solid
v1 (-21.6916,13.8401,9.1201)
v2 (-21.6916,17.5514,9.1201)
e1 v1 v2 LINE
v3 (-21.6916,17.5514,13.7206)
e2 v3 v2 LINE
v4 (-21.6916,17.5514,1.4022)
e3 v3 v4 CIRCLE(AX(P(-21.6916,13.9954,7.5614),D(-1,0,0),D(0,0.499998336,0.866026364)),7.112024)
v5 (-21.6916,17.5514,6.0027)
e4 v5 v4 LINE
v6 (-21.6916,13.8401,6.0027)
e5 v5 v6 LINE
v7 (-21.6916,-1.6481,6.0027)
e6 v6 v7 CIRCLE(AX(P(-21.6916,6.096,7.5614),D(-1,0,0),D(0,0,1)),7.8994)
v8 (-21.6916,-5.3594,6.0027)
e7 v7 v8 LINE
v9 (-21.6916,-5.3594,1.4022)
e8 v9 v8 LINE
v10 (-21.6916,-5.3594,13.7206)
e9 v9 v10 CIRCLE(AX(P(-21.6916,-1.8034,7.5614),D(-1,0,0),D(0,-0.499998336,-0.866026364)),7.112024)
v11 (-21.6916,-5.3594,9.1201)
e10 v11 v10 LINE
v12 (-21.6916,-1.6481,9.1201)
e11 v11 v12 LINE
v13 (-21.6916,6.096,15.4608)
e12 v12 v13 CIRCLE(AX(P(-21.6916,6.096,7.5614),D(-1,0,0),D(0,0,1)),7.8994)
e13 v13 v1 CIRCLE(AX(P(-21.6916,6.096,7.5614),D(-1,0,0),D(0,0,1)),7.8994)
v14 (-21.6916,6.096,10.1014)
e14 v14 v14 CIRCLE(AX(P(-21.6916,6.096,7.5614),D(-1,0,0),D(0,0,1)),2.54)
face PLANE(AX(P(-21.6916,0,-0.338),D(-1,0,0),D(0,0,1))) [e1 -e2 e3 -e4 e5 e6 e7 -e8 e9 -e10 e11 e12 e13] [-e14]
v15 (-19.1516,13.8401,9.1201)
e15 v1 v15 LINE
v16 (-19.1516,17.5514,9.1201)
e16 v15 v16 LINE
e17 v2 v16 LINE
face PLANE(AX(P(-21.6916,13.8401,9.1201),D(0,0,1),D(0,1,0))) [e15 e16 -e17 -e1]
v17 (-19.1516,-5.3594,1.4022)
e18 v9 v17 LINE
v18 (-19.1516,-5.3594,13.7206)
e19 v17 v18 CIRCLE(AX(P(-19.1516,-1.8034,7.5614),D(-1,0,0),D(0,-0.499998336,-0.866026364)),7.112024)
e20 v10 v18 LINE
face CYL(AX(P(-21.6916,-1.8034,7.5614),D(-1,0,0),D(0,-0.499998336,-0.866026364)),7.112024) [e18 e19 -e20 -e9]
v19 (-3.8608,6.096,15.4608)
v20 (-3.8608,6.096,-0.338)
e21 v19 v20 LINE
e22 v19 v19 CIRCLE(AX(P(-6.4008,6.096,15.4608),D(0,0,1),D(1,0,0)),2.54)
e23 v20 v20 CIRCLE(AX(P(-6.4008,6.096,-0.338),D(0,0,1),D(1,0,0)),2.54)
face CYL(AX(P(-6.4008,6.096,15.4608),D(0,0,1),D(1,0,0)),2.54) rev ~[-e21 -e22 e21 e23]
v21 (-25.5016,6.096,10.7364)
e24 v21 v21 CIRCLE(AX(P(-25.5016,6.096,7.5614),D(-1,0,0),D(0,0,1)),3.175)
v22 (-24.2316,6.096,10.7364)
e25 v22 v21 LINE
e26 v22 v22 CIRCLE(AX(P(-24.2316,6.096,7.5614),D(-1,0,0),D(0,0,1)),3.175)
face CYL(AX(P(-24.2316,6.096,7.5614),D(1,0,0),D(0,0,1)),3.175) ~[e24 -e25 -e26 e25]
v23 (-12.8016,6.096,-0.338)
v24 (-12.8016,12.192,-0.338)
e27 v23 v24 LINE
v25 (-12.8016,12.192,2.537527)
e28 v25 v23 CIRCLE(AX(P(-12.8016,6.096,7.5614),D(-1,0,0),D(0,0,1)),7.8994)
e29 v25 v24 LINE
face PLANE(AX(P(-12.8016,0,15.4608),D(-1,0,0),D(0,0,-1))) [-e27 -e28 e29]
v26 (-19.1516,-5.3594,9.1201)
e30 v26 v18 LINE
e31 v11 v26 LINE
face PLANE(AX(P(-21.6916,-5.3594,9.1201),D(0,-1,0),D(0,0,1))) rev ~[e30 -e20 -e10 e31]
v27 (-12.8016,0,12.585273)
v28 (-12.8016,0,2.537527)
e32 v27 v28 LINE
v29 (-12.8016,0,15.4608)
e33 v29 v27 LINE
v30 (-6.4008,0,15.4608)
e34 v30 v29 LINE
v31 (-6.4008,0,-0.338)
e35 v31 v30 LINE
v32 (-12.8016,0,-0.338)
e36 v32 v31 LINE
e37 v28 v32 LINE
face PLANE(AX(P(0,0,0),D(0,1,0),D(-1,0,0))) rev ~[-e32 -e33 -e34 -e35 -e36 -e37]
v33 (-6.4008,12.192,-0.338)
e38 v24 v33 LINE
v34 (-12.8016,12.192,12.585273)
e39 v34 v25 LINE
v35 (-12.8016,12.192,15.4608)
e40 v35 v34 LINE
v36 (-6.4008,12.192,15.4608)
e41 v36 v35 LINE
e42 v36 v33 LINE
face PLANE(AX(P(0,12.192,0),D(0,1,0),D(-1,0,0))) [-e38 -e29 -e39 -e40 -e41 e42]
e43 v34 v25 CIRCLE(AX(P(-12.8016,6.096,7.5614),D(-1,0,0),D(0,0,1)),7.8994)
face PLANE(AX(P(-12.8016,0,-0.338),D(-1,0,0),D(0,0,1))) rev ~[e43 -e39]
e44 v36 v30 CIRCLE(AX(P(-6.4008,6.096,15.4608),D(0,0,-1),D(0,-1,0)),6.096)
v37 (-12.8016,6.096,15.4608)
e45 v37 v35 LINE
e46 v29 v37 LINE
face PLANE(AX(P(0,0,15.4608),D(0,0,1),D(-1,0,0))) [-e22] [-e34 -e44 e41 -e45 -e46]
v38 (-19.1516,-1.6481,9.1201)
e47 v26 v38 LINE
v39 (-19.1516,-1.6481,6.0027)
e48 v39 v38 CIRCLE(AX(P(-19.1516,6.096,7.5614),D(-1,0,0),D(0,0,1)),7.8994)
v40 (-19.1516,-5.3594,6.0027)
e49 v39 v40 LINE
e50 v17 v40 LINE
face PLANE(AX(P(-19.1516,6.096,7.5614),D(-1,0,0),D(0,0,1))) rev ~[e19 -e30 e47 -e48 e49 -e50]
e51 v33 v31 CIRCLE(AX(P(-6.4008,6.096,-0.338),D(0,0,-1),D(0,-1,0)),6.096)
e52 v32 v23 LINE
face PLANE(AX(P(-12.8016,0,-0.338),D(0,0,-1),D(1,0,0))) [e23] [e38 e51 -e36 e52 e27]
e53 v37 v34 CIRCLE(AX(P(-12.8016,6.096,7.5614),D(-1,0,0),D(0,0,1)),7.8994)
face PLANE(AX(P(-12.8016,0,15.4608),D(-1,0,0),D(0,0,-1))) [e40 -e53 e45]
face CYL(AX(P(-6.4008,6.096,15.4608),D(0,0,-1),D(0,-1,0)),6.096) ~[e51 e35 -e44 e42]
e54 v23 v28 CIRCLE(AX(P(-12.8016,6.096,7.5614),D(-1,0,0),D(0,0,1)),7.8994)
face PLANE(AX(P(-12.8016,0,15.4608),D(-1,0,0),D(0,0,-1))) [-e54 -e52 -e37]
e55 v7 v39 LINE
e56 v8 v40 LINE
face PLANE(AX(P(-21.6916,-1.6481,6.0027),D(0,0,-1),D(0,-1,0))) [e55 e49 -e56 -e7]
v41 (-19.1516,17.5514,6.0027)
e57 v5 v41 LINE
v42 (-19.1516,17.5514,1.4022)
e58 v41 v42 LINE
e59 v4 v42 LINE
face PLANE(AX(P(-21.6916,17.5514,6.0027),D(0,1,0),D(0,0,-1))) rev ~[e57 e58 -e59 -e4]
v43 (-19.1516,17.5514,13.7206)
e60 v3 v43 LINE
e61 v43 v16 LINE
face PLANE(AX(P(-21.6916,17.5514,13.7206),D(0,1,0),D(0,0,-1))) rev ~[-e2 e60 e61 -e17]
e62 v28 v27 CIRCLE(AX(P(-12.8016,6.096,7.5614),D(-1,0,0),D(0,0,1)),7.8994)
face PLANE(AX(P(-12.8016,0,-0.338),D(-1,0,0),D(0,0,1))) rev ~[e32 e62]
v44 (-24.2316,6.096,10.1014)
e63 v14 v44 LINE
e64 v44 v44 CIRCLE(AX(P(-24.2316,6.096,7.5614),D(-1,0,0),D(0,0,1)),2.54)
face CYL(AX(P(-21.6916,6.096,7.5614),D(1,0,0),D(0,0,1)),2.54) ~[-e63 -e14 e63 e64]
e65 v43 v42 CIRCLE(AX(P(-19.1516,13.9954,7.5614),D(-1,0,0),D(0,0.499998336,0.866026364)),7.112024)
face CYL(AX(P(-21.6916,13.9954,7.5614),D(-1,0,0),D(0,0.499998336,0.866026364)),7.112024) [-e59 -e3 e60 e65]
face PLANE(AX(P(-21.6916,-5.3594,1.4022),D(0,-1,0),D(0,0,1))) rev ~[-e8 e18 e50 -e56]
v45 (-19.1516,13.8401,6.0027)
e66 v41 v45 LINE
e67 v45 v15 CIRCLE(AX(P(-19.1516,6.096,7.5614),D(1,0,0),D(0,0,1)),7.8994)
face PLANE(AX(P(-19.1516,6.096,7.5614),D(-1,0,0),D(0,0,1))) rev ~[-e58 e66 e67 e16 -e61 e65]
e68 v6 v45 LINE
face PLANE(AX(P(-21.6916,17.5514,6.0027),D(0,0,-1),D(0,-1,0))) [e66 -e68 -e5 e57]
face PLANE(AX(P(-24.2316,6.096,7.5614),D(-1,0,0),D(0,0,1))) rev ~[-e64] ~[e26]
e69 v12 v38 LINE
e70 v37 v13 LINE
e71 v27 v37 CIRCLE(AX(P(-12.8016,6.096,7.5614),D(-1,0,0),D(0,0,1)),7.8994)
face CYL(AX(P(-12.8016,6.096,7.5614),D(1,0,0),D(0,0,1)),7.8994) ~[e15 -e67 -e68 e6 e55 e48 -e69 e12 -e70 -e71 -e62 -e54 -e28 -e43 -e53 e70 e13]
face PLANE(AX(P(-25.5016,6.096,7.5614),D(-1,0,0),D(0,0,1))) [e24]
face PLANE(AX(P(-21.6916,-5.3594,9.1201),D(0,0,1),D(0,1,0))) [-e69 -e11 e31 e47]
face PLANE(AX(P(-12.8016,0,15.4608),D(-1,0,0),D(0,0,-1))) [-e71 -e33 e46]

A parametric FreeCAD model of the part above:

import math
import FreeCAD as App
import Part
import Sketcher
from FreeCAD import Vector
Q = App.Units.Quantity

doc = App.newDocument("Part")
body = doc.addObject("PartDesign::Body", "Body")

# Sketch on XZ plane
sketch1 = doc.addObject("Sketcher::SketchObject", "Sketch")
body.addObject(sketch1)
sketch1.AttachmentSupport = (doc.XZ_Plane, [""])
sketch1.MapMode = "FlatFace"
sketch1.addGeometry([
    Part.LineSegment(Vector(-13, 15, 0), Vector(0, 15, 0)),
    Part.LineSegment(Vector(0, 15, 0), Vector(0, 0, 0)),
    Part.LineSegment(Vector(0, 0, 0), Vector(-13, 0, 0)),
    Part.LineSegment(Vector(-13, 0, 0), Vector(-13, 15, 0)),
], False)
sketch1.addConstraint([
    Sketcher.Constraint("Coincident", 0, 2, 1, 1),
    Sketcher.Constraint("Coincident", 1, 2, 2, 1),
    Sketcher.Constraint("Coincident", 2, 2, 3, 1),
    Sketcher.Constraint("Coincident", 3, 2, 0, 1),
    Sketcher.Constraint("Horizontal", 0),
    Sketcher.Constraint("Vertical", 1),
    Sketcher.Constraint("Horizontal", 2),
    Sketcher.Constraint("Vertical", 3),
    Sketcher.Constraint("PointOnObject", 0, 2, -2),
    Sketcher.Constraint("DistanceX", 0, 1, 0, 2, Q("0.504 in")),
    Sketcher.Constraint("DistanceY", 1, 2, 1, 1, Q("0.622 in")),
    Sketcher.Constraint("DistanceY", -1, 1, 0, 2, Q("0.6087 in")),
])
pad1 = doc.addObject("PartDesign::Pad", "Pad")
body.addObject(pad1)
pad1.Profile = sketch1
pad1.Length = Q("0.48 in")
pad1.Reversed = True

# Sketch on XY plane
sketch2 = doc.addObject("Sketcher::SketchObject", "Sketch001")
body.addObject(sketch2)
sketch2.AttachmentSupport = (doc.XY_Plane, [""])
sketch2.MapMode = "FlatFace"
sketch2.AttachmentOffset = App.Placement(Vector(0, 0, 0.6086929 * 25.4), App.Rotation())
sketch2.addGeometry([
    Part.ArcOfCircle(Part.Circle(Vector(-6, 6, 0), Vector(0, 0, 1), 6), math.radians(-90), math.radians(90)),  # 0
    Part.LineSegment(Vector(-6, 0, 0), Vector(5, -4, 0)),  # 1
    Part.LineSegment(Vector(5, -4, 0), Vector(7, 8, 0)),  # 2
    Part.LineSegment(Vector(7, 8, 0), Vector(-1, 14, 0)),  # 3
    Part.LineSegment(Vector(-1, 14, 0), Vector(-6, 12, 0)),  # 4
], False)
sketch2.addConstraint([
    Sketcher.Constraint("Coincident", 0, 1, 1, 1),
    Sketcher.Constraint("Coincident", 1, 2, 2, 1),
    Sketcher.Constraint("Coincident", 2, 2, 3, 1),
    Sketcher.Constraint("Coincident", 3, 2, 4, 1),
    Sketcher.Constraint("Coincident", 4, 2, 0, 2),
    Sketcher.Constraint("PointOnObject", 0, 1, -1),
    Sketcher.Constraint("Vertical", 0, 1, 4, 2),
    Sketcher.Constraint("Radius", 0, Q("0.24 in")),
    Sketcher.Constraint("Angle", 1, Q("-20.43 deg")),
    Sketcher.Constraint("DistanceX", 0, 3, -1, 1, Q("0.252 in")),
    Sketcher.Constraint("DistanceX", 0, 1, -1, 1, Q("0.252 in")),
    Sketcher.Constraint("Distance", 2, Q("0.4843 in")),
    Sketcher.Constraint("Distance", 3, Q("0.3835 in")),
    Sketcher.Constraint("DistanceX", -1, 1, 1, 2, Q("0.1851 in")),
    Sketcher.Constraint("DistanceY", 2, 2, 3, 2, Q("0.2241 in")),
    Sketcher.Constraint("Distance", 4, Q("5.327 mm")),
])
pocket1 = doc.addObject("PartDesign::Pocket", "Pocket")
body.addObject(pocket1)
pocket1.Profile = sketch2
pocket1.Length = Q("100 in")
pocket1.Midplane = True

# Sketch on XY plane
sketch3 = doc.addObject("Sketcher::SketchObject", "Sketch002")
body.addObject(sketch3)
sketch3.AttachmentSupport = (doc.XY_Plane, [""])
sketch3.MapMode = "FlatFace"
sketch3.AttachmentOffset = App.Placement(Vector(0, 0, 0.6086929 * 25.4), App.Rotation())
sketch3.addGeometry(Part.Circle(Vector(-6.4, 6.1, 0), Vector(0, 0, 1), 2.5), False)
sketch3.addConstraint([
    Sketcher.Constraint("Diameter", 0, Q("0.2 in")),
    Sketcher.Constraint("DistanceY", -1, 1, 0, 3, Q("0.24 in")),
    Sketcher.Constraint("DistanceX", 0, 3, -1, 1, Q("0.252 in")),
])
pocket2 = doc.addObject("PartDesign::Pocket", "Pocket001")
body.addObject(pocket2)
pocket2.Profile = sketch3
pocket2.Length = Q("100 in")

# Sketch on YZ plane
sketch4 = doc.addObject("Sketcher::SketchObject", "Sketch003")
body.addObject(sketch4)
sketch4.AttachmentSupport = (doc.YZ_Plane, [""])
sketch4.MapMode = "FlatFace"
sketch4.AttachmentOffset = App.Placement(Vector(0, 0, -0.504 * 25.4), App.Rotation())
sketch4.addGeometry(Part.Circle(Vector(6, 8, 0), Vector(0, 0, 1), 8), False)
sketch4.addConstraint([
    Sketcher.Constraint("Diameter", 0, Q("0.622 in")),
    Sketcher.Constraint("DistanceX", -1, 1, 0, 3, Q("0.24 in")),
    Sketcher.Constraint("DistanceY", -1, 1, 0, 3, Q("0.2977 in")),
])
pad2 = doc.addObject("PartDesign::Pad", "Pad001")
body.addObject(pad2)
pad2.Profile = sketch4
pad2.Length = Q("0.35 in")
pad2.Reversed = True

# Sketch on YZ plane
sketch5 = doc.addObject("Sketcher::SketchObject", "Sketch004")
body.addObject(sketch5)
sketch5.AttachmentSupport = (doc.YZ_Plane, [""])
sketch5.MapMode = "FlatFace"
sketch5.AttachmentOffset = App.Placement(Vector(0, 0, -0.854 * 25.4), App.Rotation())
sketch5.addGeometry([
    Part.LineSegment(Vector(13.8, 6, 0), Vector(13.8, 9.1, 0)),  # 0
    Part.LineSegment(Vector(13.8, 9.1, 0), Vector(17.6, 9.1, 0)),  # 1
    Part.LineSegment(Vector(17.6, 9.1, 0), Vector(17.6, 13.7, 0)),  # 2
    Part.ArcOfCircle(Part.Circle(Vector(14, 7.6, 0), Vector(0, 0, 1), 7.1), math.radians(-60), math.radians(60)),  # 3
    Part.LineSegment(Vector(17.6, 1.4, 0), Vector(17.6, 6, 0)),  # 4
    Part.LineSegment(Vector(17.6, 6, 0), Vector(13.8, 6, 0)),  # 5
    Part.LineSegment(Vector(-5.4, 9.1, 0), Vector(-1.6, 9.1, 0)),  # 6
    Part.ArcOfCircle(Part.Circle(Vector(6.1, 7.6, 0), Vector(0, 0, 1), 7.9), math.radians(169), math.radians(191)),  # 7
    Part.LineSegment(Vector(-1.6, 6, 0), Vector(-5.4, 6, 0)),  # 8
    Part.LineSegment(Vector(-5.4, 6, 0), Vector(-5.4, 1.4, 0)),  # 9
    Part.ArcOfCircle(Part.Circle(Vector(-1.8, 7.6, 0), Vector(0, 0, 1), 7.1), math.radians(120), math.radians(240)),  # 10
    Part.LineSegment(Vector(-5.4, 13.7, 0), Vector(-5.4, 9.1, 0)),  # 11
], False)
sketch5.addConstraint([
    Sketcher.Constraint("Coincident", 0, 2, 1, 1),
    Sketcher.Constraint("Coincident", 1, 2, 2, 1),
    Sketcher.Constraint("Coincident", 2, 2, 3, 2),
    Sketcher.Constraint("Coincident", 3, 1, 4, 1),
    Sketcher.Constraint("Coincident", 4, 2, 5, 1),
    Sketcher.Constraint("Coincident", 5, 2, 0, 1),
    Sketcher.Constraint("Coincident", 6, 2, 7, 1),
    Sketcher.Constraint("Coincident", 7, 2, 8, 1),
    Sketcher.Constraint("Coincident", 8, 2, 9, 1),
    Sketcher.Constraint("Coincident", 9, 2, 10, 2),
    Sketcher.Constraint("Coincident", 10, 1, 11, 1),
    Sketcher.Constraint("Coincident", 11, 2, 6, 1),
    Sketcher.Constraint("Vertical", 0),
    Sketcher.Constraint("Horizontal", 1),
    Sketcher.Constraint("Vertical", 2),
    Sketcher.Constraint("Vertical", 4),
    Sketcher.Constraint("Horizontal", 5),
    Sketcher.Constraint("Horizontal", 6),
    Sketcher.Constraint("Horizontal", 8),
    Sketcher.Constraint("Vertical", 9),
    Sketcher.Constraint("Vertical", 11),
    Sketcher.Constraint("Equal", 3, 10),
    Sketcher.Constraint("Horizontal", 3, 3, 7, 3),
    Sketcher.Constraint("Horizontal", 7, 3, 10, 3),
    Sketcher.Constraint("Horizontal", 1, 2, 6, 2),
    Sketcher.Constraint("Horizontal", 5, 2, 7, 2),
    Sketcher.Constraint("Horizontal", 3, 1, 9, 2),
    Sketcher.Constraint("Horizontal", 2, 2, 10, 1),
    Sketcher.Constraint("Vertical", 2, 2, 3, 1),
    Sketcher.Constraint("Vertical", 6, 2, 7, 2),
    Sketcher.Constraint("Equal", 5, 6),
    Sketcher.Constraint("Radius", 3, Q("0.28 in")),
    Sketcher.Constraint("Radius", 7, Q("0.311 in")),
    Sketcher.Constraint("DistanceX", -1, 1, 7, 3, Q("0.24 in")),
    Sketcher.Constraint("DistanceX", 3, 3, 1, 2, Q("0.14 in")),
    Sketcher.Constraint("DistanceX", -1, 1, 3, 3, Q("0.551 in")),
    Sketcher.Constraint("DistanceX", 10, 3, -1, 1, Q("0.071 in")),
    Sketcher.Constraint("DistanceX", 1, 1, 1, 2, Q("3.7113 mm")),
    Sketcher.Constraint("DistanceY", -1, 1, 3, 3, Q("0.2977 in")),
])
pad3 = doc.addObject("PartDesign::Pad", "Pad002")
body.addObject(pad3)
pad3.Profile = sketch5
pad3.Length = Q("0.1 in")

# Sketch on YZ plane
sketch6 = doc.addObject("Sketcher::SketchObject", "Sketch005")
body.addObject(sketch6)
sketch6.AttachmentSupport = (doc.YZ_Plane, [""])
sketch6.MapMode = "FlatFace"
sketch6.AttachmentOffset = App.Placement(Vector(0, 0, -0.854 * 25.4), App.Rotation())
sketch6.addGeometry(Part.Circle(Vector(6.1, 7.6, 0), Vector(0, 0, 1), 2.5), False)
sketch6.addConstraint([
    Sketcher.Constraint("Diameter", 0, Q("0.2 in")),
    Sketcher.Constraint("DistanceX", -1, 1, 0, 3, Q("0.24 in")),
    Sketcher.Constraint("DistanceY", -1, 1, 0, 3, Q("0.2977 in")),
])
pad4 = doc.addObject("PartDesign::Pad", "Pad003")
body.addObject(pad4)
pad4.Profile = sketch6
pad4.Length = Q("0.1 in")
pad4.Reversed = True

# Sketch on YZ plane
sketch7 = doc.addObject("Sketcher::SketchObject", "Sketch006")
body.addObject(sketch7)
sketch7.AttachmentSupport = (doc.YZ_Plane, [""])
sketch7.MapMode = "FlatFace"
sketch7.AttachmentOffset = App.Placement(Vector(0, 0, -0.954 * 25.4), App.Rotation())
sketch7.addGeometry(Part.Circle(Vector(6.1, 7.6, 0), Vector(0, 0, 1), 3.2), False)
sketch7.addConstraint([
    Sketcher.Constraint("Diameter", 0, Q("0.25 in")),
    Sketcher.Constraint("DistanceX", -1, 1, 0, 3, Q("0.24 in")),
    Sketcher.Constraint("DistanceY", -1, 1, 0, 3, Q("0.2977 in")),
])
pad5 = doc.addObject("PartDesign::Pad", "Pad004")
body.addObject(pad5)
pad5.Profile = sketch7
pad5.Length = Q("0.05 in")
pad5.Reversed = True

doc.recompute()
